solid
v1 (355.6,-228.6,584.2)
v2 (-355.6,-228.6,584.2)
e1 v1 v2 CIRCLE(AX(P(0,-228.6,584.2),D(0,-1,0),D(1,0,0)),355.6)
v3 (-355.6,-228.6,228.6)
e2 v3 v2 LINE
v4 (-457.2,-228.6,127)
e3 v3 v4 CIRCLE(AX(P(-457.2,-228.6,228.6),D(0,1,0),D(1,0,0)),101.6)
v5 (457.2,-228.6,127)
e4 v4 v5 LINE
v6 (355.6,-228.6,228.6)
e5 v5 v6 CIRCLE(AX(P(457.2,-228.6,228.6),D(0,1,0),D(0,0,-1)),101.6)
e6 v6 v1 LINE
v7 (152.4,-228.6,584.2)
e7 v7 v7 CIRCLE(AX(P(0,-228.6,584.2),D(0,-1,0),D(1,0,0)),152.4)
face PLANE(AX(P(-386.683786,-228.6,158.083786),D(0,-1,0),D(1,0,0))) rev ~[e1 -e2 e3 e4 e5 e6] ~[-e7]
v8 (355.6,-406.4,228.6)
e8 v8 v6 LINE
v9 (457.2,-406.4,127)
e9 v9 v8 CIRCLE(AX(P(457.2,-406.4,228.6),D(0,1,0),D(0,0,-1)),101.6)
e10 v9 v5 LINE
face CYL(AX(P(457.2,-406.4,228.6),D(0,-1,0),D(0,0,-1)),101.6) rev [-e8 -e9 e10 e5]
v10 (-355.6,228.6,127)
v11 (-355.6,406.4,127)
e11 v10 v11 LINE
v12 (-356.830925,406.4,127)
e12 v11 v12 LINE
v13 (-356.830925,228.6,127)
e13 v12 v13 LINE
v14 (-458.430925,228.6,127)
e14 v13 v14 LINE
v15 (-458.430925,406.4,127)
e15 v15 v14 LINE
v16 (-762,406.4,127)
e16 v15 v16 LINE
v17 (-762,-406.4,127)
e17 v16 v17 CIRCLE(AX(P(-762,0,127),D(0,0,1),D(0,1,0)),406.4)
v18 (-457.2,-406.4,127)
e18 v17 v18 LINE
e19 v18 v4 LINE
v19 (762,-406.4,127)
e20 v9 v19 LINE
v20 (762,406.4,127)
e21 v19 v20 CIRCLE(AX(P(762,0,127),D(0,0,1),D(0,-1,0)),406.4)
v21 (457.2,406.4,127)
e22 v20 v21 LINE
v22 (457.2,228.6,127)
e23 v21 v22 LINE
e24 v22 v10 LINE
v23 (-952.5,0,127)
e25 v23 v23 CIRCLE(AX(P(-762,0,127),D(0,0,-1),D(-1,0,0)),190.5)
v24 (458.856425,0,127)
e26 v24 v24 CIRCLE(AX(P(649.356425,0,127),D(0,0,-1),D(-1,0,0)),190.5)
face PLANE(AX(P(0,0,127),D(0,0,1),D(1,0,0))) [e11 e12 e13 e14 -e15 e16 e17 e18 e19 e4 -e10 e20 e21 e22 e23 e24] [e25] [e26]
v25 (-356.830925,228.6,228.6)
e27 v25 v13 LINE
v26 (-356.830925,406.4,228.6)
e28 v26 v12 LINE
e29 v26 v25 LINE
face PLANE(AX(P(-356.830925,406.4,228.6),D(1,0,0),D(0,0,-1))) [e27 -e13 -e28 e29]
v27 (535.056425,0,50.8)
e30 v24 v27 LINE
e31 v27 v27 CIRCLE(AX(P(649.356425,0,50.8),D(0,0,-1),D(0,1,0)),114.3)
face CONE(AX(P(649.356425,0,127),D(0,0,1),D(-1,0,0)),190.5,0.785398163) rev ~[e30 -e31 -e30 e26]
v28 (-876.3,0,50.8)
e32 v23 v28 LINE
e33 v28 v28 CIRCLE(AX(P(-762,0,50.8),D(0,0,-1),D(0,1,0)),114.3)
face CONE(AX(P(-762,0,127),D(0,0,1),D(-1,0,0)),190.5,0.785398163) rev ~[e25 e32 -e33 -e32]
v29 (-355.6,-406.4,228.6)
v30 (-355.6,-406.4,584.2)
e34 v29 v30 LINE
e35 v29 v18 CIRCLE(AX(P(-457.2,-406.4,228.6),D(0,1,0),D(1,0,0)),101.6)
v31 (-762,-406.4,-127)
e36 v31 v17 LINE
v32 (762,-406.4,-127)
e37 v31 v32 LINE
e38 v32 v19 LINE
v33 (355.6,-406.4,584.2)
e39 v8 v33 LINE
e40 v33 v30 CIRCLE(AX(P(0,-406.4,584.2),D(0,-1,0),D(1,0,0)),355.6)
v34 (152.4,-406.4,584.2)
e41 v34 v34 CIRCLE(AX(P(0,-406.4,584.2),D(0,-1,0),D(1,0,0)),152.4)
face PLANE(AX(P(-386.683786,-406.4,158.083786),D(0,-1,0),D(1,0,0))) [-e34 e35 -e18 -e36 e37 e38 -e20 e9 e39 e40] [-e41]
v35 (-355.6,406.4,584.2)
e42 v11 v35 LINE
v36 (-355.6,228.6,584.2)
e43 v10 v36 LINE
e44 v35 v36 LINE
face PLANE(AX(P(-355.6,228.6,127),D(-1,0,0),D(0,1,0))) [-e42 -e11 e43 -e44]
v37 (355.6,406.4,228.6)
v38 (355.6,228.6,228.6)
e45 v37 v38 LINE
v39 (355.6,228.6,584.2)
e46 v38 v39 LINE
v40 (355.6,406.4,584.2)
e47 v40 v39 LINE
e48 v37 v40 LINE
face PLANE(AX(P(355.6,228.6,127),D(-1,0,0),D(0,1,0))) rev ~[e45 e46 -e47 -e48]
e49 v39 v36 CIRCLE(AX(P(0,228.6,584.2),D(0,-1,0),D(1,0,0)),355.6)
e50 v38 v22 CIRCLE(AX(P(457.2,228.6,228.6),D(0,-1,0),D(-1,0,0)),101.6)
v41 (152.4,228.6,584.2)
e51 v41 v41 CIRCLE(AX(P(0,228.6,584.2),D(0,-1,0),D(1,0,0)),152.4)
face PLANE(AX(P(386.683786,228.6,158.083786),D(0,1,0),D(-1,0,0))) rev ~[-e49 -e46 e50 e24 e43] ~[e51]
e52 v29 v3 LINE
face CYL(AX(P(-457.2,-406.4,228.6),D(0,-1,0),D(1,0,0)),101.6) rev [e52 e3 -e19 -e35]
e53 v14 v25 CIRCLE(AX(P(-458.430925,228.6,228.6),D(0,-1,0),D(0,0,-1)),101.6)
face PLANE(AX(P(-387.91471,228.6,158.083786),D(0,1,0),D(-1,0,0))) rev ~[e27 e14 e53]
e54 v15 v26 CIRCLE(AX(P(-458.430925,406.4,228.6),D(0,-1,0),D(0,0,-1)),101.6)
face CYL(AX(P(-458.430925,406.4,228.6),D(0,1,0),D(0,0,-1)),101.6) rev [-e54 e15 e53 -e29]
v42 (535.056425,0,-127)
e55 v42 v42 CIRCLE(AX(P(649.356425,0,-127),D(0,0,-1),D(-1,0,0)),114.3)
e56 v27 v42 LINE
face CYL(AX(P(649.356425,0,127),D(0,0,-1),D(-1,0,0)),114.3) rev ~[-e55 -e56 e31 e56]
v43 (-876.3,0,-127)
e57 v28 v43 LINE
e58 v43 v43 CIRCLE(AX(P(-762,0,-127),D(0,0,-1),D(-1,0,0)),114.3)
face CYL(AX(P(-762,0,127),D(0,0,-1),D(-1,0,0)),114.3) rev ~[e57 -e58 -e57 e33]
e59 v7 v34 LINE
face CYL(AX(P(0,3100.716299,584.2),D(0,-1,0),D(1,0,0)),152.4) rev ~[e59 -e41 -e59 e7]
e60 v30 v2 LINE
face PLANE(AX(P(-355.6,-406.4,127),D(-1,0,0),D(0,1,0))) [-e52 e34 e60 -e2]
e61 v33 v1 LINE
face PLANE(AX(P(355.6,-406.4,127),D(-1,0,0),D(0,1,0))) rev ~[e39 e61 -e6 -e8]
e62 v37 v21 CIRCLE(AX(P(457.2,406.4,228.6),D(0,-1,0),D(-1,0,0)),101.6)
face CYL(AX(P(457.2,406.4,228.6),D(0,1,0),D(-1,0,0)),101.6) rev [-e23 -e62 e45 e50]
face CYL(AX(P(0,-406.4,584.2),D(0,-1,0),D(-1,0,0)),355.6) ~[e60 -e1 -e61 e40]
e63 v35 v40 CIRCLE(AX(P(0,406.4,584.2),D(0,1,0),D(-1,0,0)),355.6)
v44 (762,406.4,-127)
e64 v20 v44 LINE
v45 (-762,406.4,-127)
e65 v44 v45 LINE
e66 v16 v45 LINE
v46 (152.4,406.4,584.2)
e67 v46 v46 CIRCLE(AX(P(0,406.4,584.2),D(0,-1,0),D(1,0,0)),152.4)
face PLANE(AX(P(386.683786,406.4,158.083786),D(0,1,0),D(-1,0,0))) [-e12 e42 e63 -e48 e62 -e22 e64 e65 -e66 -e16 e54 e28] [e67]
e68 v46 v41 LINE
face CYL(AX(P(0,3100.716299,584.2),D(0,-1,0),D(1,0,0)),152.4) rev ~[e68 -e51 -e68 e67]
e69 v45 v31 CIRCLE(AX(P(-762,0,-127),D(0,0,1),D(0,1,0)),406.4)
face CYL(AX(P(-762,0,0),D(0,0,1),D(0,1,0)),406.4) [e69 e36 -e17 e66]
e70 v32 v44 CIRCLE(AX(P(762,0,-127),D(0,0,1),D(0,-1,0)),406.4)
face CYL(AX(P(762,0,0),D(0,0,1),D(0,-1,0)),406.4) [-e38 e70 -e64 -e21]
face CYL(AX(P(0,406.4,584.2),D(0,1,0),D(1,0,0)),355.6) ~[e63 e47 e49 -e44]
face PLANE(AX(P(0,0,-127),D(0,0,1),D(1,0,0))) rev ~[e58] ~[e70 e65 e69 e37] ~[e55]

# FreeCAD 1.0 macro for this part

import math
import FreeCAD as App
import Part
import Sketcher

V = App.Vector
Q = App.Units.Quantity


def add_polygon(sketch, points):
    """Adds a closed chain of lines whose ends are joined by coincident constraints."""
    first, n = sketch.GeometryCount, len(points)
    for a, b in zip(points, points[1:] + points[:1]):
        sketch.addGeometry(Part.LineSegment(App.Vector(*a, 0), App.Vector(*b, 0)), False)
    for i in range(n):
        sketch.addConstraint(Sketcher.Constraint("Coincident", first + i, 2, first + (i + 1) % n, 1))

doc = App.newDocument("Part")
body = doc.addObject("PartDesign::Body", "Body")

sketch1 = body.newObject("Sketcher::SketchObject", "Sketch")
sketch1.AttachmentSupport = (doc.getObject("XY_Plane"), [""])
sketch1.MapMode = "FlatFace"
sketch1.addGeometry(Part.ArcOfCircle(Part.Circle(V(-762, 0, 0), V(0, 0, 1), 406.4), math.radians(90), math.radians(270)), False)
sketch1.addGeometry(Part.LineSegment(V(-762, -406.4, 0), V(762, -406.4, 0)), False)
sketch1.addGeometry(Part.ArcOfCircle(Part.Circle(V(762, 0, 0), V(0, 0, 1), 406.4), math.radians(-90), math.radians(90)), False)
sketch1.addGeometry(Part.LineSegment(V(762, 406.4, 0), V(-762, 406.4, 0)), False)
sketch1.addConstraint(Sketcher.Constraint("Tangent", 0, 2, 1, 1))
sketch1.addConstraint(Sketcher.Constraint("Tangent", 1, 2, 2, 1))
sketch1.addConstraint(Sketcher.Constraint("Tangent", 2, 2, 3, 1))
sketch1.addConstraint(Sketcher.Constraint("Tangent", 3, 2, 0, 1))
sketch1.addConstraint(Sketcher.Constraint("Horizontal", 1))
sketch1.addConstraint(Sketcher.Constraint("Horizontal", 3))
sketch1.addConstraint(Sketcher.Constraint("Symmetric", 0, 3, 2, 3, -1, 1))
sketch1.addConstraint(Sketcher.Constraint("Radius", 0, Q("16 in")))
sketch1.addConstraint(Sketcher.Constraint("DistanceX", 1, 1, 1, 2, Q("60 in")))
pad1 = body.newObject("PartDesign::Pad", "Pad")
pad1.Profile = sketch1
pad1.Length = Q("10 in")
pad1.Midplane = True

sketch2 = body.newObject("Sketcher::SketchObject", "Sketch001")
sketch2.AttachmentSupport = (doc.getObject("XY_Plane"), [""])
sketch2.MapMode = "FlatFace"
sketch2.AttachmentOffset = App.Placement(V(0, 0, 5 * 25.4), App.Rotation())
add_polygon(sketch2, [(-355.6, -228.6), (-355.6, -406.4), (355.6, -406.4), (355.6, -228.6)])
add_polygon(sketch2, [(-355.6, 406.4), (-355.6, 228.6), (355.6, 228.6), (355.6, 406.4)])
sketch2.addConstraint(Sketcher.Constraint("Vertical", 0))
sketch2.addConstraint(Sketcher.Constraint("Horizontal", 1))
sketch2.addConstraint(Sketcher.Constraint("Vertical", 2))
sketch2.addConstraint(Sketcher.Constraint("Horizontal", 3))
sketch2.addConstraint(Sketcher.Constraint("Vertical", 4))
sketch2.addConstraint(Sketcher.Constraint("Horizontal", 5))
sketch2.addConstraint(Sketcher.Constraint("Vertical", 6))
sketch2.addConstraint(Sketcher.Constraint("Horizontal", 7))
sketch2.addConstraint(Sketcher.Constraint("Symmetric", 2, 2, 4, 2, -1, 1))
sketch2.addConstraint(Sketcher.Constraint("Symmetric", 0, 2, 6, 2, -1, 1))
sketch2.addConstraint(Sketcher.Constraint("Vertical", 3, 2, 4, 2))
sketch2.addConstraint(Sketcher.Constraint("DistanceX", 1, 1, 1, 2, Q("28 in")))
sketch2.addConstraint(Sketcher.Constraint("DistanceY", 0, 2, 0, 1, Q("7 in")))
sketch2.addConstraint(Sketcher.Constraint("DistanceY", 0, 2, -1, 1, Q("16 in")))
pad2 = body.newObject("PartDesign::Pad", "Pad001")
pad2.Profile = sketch2
pad2.Length = Q("32 in")

sketch3 = body.newObject("Sketcher::SketchObject", "Sketch002")
sketch3.AttachmentSupport = (doc.getObject("XY_Plane"), [""])
sketch3.MapMode = "FlatFace"
sketch3.AttachmentOffset = App.Placement(V(0, 0, 5 * 25.4), App.Rotation())
sketch3.addGeometry(Part.Circle(V(649.356425, 0, 0), V(0, 0, 1), 114.3), False)
sketch3.addGeometry(Part.Circle(V(-762, 0, 0), V(0, 0, 1), 114.3), False)
sketch3.addConstraint(Sketcher.Constraint("Equal", 0, 1))
sketch3.addConstraint(Sketcher.Constraint("PointOnObject", 0, 3, -1))
sketch3.addConstraint(Sketcher.Constraint("PointOnObject", 1, 3, -1))
sketch3.addConstraint(Sketcher.Constraint("Diameter", 0, Q("9 in")))
sketch3.addConstraint(Sketcher.Constraint("DistanceX", 1, 3, -1, 1, Q("30 in")))
sketch3.addConstraint(Sketcher.Constraint("DistanceX", -1, 1, 0, 3, Q("649.356425 mm")))
doc.recompute()
hole = body.newObject("PartDesign::Hole", "Hole")
hole.Profile = sketch3
hole.ThreadType = "None"
hole.Diameter = Q("9 in")
hole.DepthType = "ThroughAll"
hole.HoleCutType = "Countersink"
hole.HoleCutDiameter = Q("15 in")
hole.HoleCutCountersinkAngle = 90

sketch4 = body.newObject("Sketcher::SketchObject", "Sketch003")
sketch4.AttachmentSupport = (doc.getObject("XZ_Plane"), [""])
sketch4.MapMode = "FlatFace"
sketch4.AttachmentOffset = App.Placement(V(0, 0, 16 * 25.4), App.Rotation())
sketch4.addGeometry(Part.LineSegment(V(-355.6, 939.8, 0), V(-355.6, 584.2, 0)), False)
sketch4.addGeometry(Part.ArcOfCircle(Part.Circle(V(0, 584.2, 0), V(0, 0, 1), 355.6), math.radians(90), math.radians(180)), False)
sketch4.addGeometry(Part.LineSegment(V(0.000002, 939.8, 0), V(-355.6, 939.8, 0)), False)
sketch4.addGeometry(Part.ArcOfCircle(Part.Circle(V(0, 584.2, 0), V(0, 0, 1), 355.6), math.radians(0), math.radians(90)), False)
sketch4.addGeometry(Part.LineSegment(V(355.6, 584.2, 0), V(355.6, 939.8, 0)), False)
sketch4.addGeometry(Part.LineSegment(V(355.6, 939.8, 0), V(0.000002, 939.8, 0)), False)
sketch4.addConstraint(Sketcher.Constraint("Tangent", 0, 2, 1, 2))
sketch4.addConstraint(Sketcher.Constraint("Tangent", 1, 1, 2, 1))
sketch4.addConstraint(Sketcher.Constraint("Coincident", 2, 2, 0, 1))
sketch4.addConstraint(Sketcher.Constraint("Tangent", 3, 1, 4, 1))
sketch4.addConstraint(Sketcher.Constraint("Coincident", 4, 2, 5, 1))
sketch4.addConstraint(Sketcher.Constraint("Tangent", 5, 2, 3, 2))
sketch4.addConstraint(Sketcher.Constraint("Vertical", 0))
sketch4.addConstraint(Sketcher.Constraint("Horizontal", 2))
sketch4.addConstraint(Sketcher.Constraint("Vertical", 4))
sketch4.addConstraint(Sketcher.Constraint("Horizontal", 5))
sketch4.addConstraint(Sketcher.Constraint("Coincident", 3, 3, 1, 3))
sketch4.addConstraint(Sketcher.Constraint("Equal", 1, 3))
sketch4.addConstraint(Sketcher.Constraint("PointOnObject", 1, 3, -2))
sketch4.addConstraint(Sketcher.Constraint("Radius", 1, Q("14 in")))
sketch4.addConstraint(Sketcher.Constraint("DistanceY", -1, 1, 1, 3, Q("23 in")))
pocket1 = body.newObject("PartDesign::Pocket", "Pocket")
pocket1.Profile = sketch4
pocket1.Length = Q("7 in")

sketch5 = body.newObject("Sketcher::SketchObject", "Sketch004")
sketch5.AttachmentSupport = (doc.getObject("XZ_Plane"), [""])
sketch5.MapMode = "FlatFace"
sketch5.AttachmentOffset = App.Placement(V(0, 0, -16 * 25.4), App.Rotation())
sketch5.addGeometry(Part.LineSegment(V(355.6, 939.8, 0), V(355.6, 584.2, 0)), False)
sketch5.addGeometry(Part.ArcOfCircle(Part.Circle(V(0, 584.2, 0), V(0, 0, 1), 355.6), math.radians(0), math.radians(90)), False)
sketch5.addGeometry(Part.LineSegment(V(-0.000002, 939.8, 0), V(355.6, 939.8, 0)), False)
sketch5.addGeometry(Part.ArcOfCircle(Part.Circle(V(0, 584.2, 0), V(0, 0, 1), 355.6), math.radians(90), math.radians(180)), False)
sketch5.addGeometry(Part.LineSegment(V(-355.6, 584.2, 0), V(-355.6, 939.8, 0)), False)
sketch5.addGeometry(Part.LineSegment(V(-355.6, 939.8, 0), V(-0.000002, 939.8, 0)), False)
sketch5.addConstraint(Sketcher.Constraint("Tangent", 0, 2, 1, 1))
sketch5.addConstraint(Sketcher.Constraint("Tangent", 1, 2, 2, 1))
sketch5.addConstraint(Sketcher.Constraint("Coincident", 2, 2, 0, 1))
sketch5.addConstraint(Sketcher.Constraint("Tangent", 3, 2, 4, 1))
sketch5.addConstraint(Sketcher.Constraint("Coincident", 4, 2, 5, 1))
sketch5.addConstraint(Sketcher.Constraint("Tangent", 5, 2, 3, 1))
sketch5.addConstraint(Sketcher.Constraint("Vertical", 0))
sketch5.addConstraint(Sketcher.Constraint("Horizontal", 2))
sketch5.addConstraint(Sketcher.Constraint("Vertical", 4))
sketch5.addConstraint(Sketcher.Constraint("Horizontal", 5))
sketch5.addConstraint(Sketcher.Constraint("Coincident", 3, 3, 1, 3))
sketch5.addConstraint(Sketcher.Constraint("Equal", 1, 3))
sketch5.addConstraint(Sketcher.Constraint("PointOnObject", 1, 3, -2))
sketch5.addConstraint(Sketcher.Constraint("Radius", 1, Q("14 in")))
sketch5.addConstraint(Sketcher.Constraint("DistanceY", -1, 1, 1, 3, Q("23 in")))
pocket2 = body.newObject("PartDesign::Pocket", "Pocket001")
pocket2.Profile = sketch5
pocket2.Length = Q("7 in")
pocket2.Reversed = True

sketch6 = body.newObject("Sketcher::SketchObject", "Sketch005")
sketch6.AttachmentSupport = (doc.getObject("XZ_Plane"), [""])
sketch6.MapMode = "FlatFace"
sketch6.AttachmentOffset = App.Placement(V(0, 0, -16 * 25.4), App.Rotation())
sketch6.addGeometry(Part.Circle(V(0, 584.2, 0), V(0, 0, 1), 152.4), False)
sketch6.addConstraint(Sketcher.Constraint("PointOnObject", 0, 3, -2))
sketch6.addConstraint(Sketcher.Constraint("Diameter", 0, Q("12 in")))
sketch6.addConstraint(Sketcher.Constraint("DistanceY", -1, 1, 0, 3, Q("23 in")))
doc.recompute()
hole2 = body.newObject("PartDesign::Hole", "Hole001")
hole2.Profile = sketch6
hole2.ThreadType = "None"
hole2.Diameter = Q("12 in")
hole2.DepthType = "ThroughAll"
hole2.Reversed = True

sketch7 = body.newObject("Sketcher::SketchObject", "Sketch006")
sketch7.AttachmentSupport = (doc.getObject("XZ_Plane"), [""])
sketch7.MapMode = "FlatFace"
sketch7.AttachmentOffset = App.Placement(V(0, 0, 16 * 25.4), App.Rotation())
sketch7.addGeometry(Part.LineSegment(V(-457.2, 127, 0), V(-355.6, 127, 0)), False)
sketch7.addGeometry(Part.LineSegment(V(-355.6, 127, 0), V(-355.6, 228.6, 0)), False)
sketch7.addGeometry(Part.ArcOfCircle(Part.Circle(V(-457.2, 228.6, 0), V(0, 0, 1), 101.6), math.radians(-90), math.radians(0)), False)
sketch7.addGeometry(Part.ArcOfCircle(Part.Circle(V(457.2, 228.6, 0), V(0, 0, 1), 101.6), math.radians(180), math.radians(270)), False)
sketch7.addGeometry(Part.LineSegment(V(355.6, 228.6, 0), V(355.6, 127, 0)), False)
sketch7.addGeometry(Part.LineSegment(V(355.6, 127, 0), V(457.2, 127, 0)), False)
sketch7.addConstraint(Sketcher.Constraint("Coincident", 0, 2, 1, 1))
sketch7.addConstraint(Sketcher.Constraint("Tangent", 1, 2, 2, 2))
sketch7.addConstraint(Sketcher.Constraint("Tangent", 2, 1, 0, 1))
sketch7.addConstraint(Sketcher.Constraint("Tangent", 3, 1, 4, 1))
sketch7.addConstraint(Sketcher.Constraint("Coincident", 4, 2, 5, 1))
sketch7.addConstraint(Sketcher.Constraint("Tangent", 5, 2, 3, 2))
sketch7.addConstraint(Sketcher.Constraint("Horizontal", 0))
sketch7.addConstraint(Sketcher.Constraint("Vertical", 1))
sketch7.addConstraint(Sketcher.Constraint("Vertical", 4))
sketch7.addConstraint(Sketcher.Constraint("Horizontal", 5))
sketch7.addConstraint(Sketcher.Constraint("Equal", 2, 3))
sketch7.addConstraint(Sketcher.Constraint("Symmetric", 2, 3, 3, 3, -2))
sketch7.addConstraint(Sketcher.Constraint("Radius", 2, Q("4 in")))
sketch7.addConstraint(Sketcher.Constraint("DistanceX", 2, 3, -1, 1, Q("18 in")))
sketch7.addConstraint(Sketcher.Constraint("DistanceY", -1, 1, 2, 3, Q("9 in")))
pad3 = body.newObject("PartDesign::Pad", "Pad002")
pad3.Profile = sketch7
pad3.Length = Q("7 in")
pad3.Reversed = True

sketch8 = body.newObject("Sketcher::SketchObject", "Sketch007")
sketch8.AttachmentSupport = (doc.getObject("XZ_Plane"), [""])
sketch8.MapMode = "FlatFace"
sketch8.AttachmentOffset = App.Placement(V(0, 0, -16 * 25.4), App.Rotation())
sketch8.addGeometry(Part.LineSegment(V(355.6, 127, 0), V(355.6, 228.6, 0)), False)
sketch8.addGeometry(Part.ArcOfCircle(Part.Circle(V(457.2, 228.6, 0), V(0, 0, 1), 101.6), math.radians(180), math.radians(270)), False)
sketch8.addGeometry(Part.LineSegment(V(457.2, 127, 0), V(355.6, 127, 0)), False)
sketch8.addGeometry(Part.ArcOfCircle(Part.Circle(V(-458.430925, 228.6, 0), V(0, 0, 1), 101.6), math.radians(-90), math.radians(0)), False)
sketch8.addGeometry(Part.LineSegment(V(-356.830925, 228.6, 0), V(-356.830925, 127, 0)), False)
sketch8.addGeometry(Part.LineSegment(V(-356.830925, 127, 0), V(-458.430925, 127, 0)), False)
sketch8.addConstraint(Sketcher.Constraint("Tangent", 0, 2, 1, 1))
sketch8.addConstraint(Sketcher.Constraint("Tangent", 1, 2, 2, 1))
sketch8.addConstraint(Sketcher.Constraint("Coincident", 2, 2, 0, 1))
sketch8.addConstraint(Sketcher.Constraint("Tangent", 3, 2, 4, 1))
sketch8.addConstraint(Sketcher.Constraint("Coincident", 4, 2, 5, 1))
sketch8.addConstraint(Sketcher.Constraint("Tangent", 5, 2, 3, 1))
sketch8.addConstraint(Sketcher.Constraint("Vertical", 0))
sketch8.addConstraint(Sketcher.Constraint("Horizontal", 2))
sketch8.addConstraint(Sketcher.Constraint("Vertical", 4))
sketch8.addConstraint(Sketcher.Constraint("Horizontal", 5))
sketch8.addConstraint(Sketcher.Constraint("Equal", 1, 3))
sketch8.addConstraint(Sketcher.Constraint("Horizontal", 1, 3, 3, 3))
sketch8.addConstraint(Sketcher.Constraint("Radius", 1, Q("4 in")))
sketch8.addConstraint(Sketcher.Constraint("DistanceX", -1, 1, 1, 3, Q("18 in")))
sketch8.addConstraint(Sketcher.Constraint("DistanceY", -1, 1, 1, 3, Q("9 in")))
sketch8.addConstraint(Sketcher.Constraint("DistanceX", 3, 3, -1, 1, Q("458.430925 mm")))
pad4 = body.newObject("PartDesign::Pad", "Pad003")
pad4.Profile = sketch8
pad4.Length = Q("7 in")

doc.recompute()
